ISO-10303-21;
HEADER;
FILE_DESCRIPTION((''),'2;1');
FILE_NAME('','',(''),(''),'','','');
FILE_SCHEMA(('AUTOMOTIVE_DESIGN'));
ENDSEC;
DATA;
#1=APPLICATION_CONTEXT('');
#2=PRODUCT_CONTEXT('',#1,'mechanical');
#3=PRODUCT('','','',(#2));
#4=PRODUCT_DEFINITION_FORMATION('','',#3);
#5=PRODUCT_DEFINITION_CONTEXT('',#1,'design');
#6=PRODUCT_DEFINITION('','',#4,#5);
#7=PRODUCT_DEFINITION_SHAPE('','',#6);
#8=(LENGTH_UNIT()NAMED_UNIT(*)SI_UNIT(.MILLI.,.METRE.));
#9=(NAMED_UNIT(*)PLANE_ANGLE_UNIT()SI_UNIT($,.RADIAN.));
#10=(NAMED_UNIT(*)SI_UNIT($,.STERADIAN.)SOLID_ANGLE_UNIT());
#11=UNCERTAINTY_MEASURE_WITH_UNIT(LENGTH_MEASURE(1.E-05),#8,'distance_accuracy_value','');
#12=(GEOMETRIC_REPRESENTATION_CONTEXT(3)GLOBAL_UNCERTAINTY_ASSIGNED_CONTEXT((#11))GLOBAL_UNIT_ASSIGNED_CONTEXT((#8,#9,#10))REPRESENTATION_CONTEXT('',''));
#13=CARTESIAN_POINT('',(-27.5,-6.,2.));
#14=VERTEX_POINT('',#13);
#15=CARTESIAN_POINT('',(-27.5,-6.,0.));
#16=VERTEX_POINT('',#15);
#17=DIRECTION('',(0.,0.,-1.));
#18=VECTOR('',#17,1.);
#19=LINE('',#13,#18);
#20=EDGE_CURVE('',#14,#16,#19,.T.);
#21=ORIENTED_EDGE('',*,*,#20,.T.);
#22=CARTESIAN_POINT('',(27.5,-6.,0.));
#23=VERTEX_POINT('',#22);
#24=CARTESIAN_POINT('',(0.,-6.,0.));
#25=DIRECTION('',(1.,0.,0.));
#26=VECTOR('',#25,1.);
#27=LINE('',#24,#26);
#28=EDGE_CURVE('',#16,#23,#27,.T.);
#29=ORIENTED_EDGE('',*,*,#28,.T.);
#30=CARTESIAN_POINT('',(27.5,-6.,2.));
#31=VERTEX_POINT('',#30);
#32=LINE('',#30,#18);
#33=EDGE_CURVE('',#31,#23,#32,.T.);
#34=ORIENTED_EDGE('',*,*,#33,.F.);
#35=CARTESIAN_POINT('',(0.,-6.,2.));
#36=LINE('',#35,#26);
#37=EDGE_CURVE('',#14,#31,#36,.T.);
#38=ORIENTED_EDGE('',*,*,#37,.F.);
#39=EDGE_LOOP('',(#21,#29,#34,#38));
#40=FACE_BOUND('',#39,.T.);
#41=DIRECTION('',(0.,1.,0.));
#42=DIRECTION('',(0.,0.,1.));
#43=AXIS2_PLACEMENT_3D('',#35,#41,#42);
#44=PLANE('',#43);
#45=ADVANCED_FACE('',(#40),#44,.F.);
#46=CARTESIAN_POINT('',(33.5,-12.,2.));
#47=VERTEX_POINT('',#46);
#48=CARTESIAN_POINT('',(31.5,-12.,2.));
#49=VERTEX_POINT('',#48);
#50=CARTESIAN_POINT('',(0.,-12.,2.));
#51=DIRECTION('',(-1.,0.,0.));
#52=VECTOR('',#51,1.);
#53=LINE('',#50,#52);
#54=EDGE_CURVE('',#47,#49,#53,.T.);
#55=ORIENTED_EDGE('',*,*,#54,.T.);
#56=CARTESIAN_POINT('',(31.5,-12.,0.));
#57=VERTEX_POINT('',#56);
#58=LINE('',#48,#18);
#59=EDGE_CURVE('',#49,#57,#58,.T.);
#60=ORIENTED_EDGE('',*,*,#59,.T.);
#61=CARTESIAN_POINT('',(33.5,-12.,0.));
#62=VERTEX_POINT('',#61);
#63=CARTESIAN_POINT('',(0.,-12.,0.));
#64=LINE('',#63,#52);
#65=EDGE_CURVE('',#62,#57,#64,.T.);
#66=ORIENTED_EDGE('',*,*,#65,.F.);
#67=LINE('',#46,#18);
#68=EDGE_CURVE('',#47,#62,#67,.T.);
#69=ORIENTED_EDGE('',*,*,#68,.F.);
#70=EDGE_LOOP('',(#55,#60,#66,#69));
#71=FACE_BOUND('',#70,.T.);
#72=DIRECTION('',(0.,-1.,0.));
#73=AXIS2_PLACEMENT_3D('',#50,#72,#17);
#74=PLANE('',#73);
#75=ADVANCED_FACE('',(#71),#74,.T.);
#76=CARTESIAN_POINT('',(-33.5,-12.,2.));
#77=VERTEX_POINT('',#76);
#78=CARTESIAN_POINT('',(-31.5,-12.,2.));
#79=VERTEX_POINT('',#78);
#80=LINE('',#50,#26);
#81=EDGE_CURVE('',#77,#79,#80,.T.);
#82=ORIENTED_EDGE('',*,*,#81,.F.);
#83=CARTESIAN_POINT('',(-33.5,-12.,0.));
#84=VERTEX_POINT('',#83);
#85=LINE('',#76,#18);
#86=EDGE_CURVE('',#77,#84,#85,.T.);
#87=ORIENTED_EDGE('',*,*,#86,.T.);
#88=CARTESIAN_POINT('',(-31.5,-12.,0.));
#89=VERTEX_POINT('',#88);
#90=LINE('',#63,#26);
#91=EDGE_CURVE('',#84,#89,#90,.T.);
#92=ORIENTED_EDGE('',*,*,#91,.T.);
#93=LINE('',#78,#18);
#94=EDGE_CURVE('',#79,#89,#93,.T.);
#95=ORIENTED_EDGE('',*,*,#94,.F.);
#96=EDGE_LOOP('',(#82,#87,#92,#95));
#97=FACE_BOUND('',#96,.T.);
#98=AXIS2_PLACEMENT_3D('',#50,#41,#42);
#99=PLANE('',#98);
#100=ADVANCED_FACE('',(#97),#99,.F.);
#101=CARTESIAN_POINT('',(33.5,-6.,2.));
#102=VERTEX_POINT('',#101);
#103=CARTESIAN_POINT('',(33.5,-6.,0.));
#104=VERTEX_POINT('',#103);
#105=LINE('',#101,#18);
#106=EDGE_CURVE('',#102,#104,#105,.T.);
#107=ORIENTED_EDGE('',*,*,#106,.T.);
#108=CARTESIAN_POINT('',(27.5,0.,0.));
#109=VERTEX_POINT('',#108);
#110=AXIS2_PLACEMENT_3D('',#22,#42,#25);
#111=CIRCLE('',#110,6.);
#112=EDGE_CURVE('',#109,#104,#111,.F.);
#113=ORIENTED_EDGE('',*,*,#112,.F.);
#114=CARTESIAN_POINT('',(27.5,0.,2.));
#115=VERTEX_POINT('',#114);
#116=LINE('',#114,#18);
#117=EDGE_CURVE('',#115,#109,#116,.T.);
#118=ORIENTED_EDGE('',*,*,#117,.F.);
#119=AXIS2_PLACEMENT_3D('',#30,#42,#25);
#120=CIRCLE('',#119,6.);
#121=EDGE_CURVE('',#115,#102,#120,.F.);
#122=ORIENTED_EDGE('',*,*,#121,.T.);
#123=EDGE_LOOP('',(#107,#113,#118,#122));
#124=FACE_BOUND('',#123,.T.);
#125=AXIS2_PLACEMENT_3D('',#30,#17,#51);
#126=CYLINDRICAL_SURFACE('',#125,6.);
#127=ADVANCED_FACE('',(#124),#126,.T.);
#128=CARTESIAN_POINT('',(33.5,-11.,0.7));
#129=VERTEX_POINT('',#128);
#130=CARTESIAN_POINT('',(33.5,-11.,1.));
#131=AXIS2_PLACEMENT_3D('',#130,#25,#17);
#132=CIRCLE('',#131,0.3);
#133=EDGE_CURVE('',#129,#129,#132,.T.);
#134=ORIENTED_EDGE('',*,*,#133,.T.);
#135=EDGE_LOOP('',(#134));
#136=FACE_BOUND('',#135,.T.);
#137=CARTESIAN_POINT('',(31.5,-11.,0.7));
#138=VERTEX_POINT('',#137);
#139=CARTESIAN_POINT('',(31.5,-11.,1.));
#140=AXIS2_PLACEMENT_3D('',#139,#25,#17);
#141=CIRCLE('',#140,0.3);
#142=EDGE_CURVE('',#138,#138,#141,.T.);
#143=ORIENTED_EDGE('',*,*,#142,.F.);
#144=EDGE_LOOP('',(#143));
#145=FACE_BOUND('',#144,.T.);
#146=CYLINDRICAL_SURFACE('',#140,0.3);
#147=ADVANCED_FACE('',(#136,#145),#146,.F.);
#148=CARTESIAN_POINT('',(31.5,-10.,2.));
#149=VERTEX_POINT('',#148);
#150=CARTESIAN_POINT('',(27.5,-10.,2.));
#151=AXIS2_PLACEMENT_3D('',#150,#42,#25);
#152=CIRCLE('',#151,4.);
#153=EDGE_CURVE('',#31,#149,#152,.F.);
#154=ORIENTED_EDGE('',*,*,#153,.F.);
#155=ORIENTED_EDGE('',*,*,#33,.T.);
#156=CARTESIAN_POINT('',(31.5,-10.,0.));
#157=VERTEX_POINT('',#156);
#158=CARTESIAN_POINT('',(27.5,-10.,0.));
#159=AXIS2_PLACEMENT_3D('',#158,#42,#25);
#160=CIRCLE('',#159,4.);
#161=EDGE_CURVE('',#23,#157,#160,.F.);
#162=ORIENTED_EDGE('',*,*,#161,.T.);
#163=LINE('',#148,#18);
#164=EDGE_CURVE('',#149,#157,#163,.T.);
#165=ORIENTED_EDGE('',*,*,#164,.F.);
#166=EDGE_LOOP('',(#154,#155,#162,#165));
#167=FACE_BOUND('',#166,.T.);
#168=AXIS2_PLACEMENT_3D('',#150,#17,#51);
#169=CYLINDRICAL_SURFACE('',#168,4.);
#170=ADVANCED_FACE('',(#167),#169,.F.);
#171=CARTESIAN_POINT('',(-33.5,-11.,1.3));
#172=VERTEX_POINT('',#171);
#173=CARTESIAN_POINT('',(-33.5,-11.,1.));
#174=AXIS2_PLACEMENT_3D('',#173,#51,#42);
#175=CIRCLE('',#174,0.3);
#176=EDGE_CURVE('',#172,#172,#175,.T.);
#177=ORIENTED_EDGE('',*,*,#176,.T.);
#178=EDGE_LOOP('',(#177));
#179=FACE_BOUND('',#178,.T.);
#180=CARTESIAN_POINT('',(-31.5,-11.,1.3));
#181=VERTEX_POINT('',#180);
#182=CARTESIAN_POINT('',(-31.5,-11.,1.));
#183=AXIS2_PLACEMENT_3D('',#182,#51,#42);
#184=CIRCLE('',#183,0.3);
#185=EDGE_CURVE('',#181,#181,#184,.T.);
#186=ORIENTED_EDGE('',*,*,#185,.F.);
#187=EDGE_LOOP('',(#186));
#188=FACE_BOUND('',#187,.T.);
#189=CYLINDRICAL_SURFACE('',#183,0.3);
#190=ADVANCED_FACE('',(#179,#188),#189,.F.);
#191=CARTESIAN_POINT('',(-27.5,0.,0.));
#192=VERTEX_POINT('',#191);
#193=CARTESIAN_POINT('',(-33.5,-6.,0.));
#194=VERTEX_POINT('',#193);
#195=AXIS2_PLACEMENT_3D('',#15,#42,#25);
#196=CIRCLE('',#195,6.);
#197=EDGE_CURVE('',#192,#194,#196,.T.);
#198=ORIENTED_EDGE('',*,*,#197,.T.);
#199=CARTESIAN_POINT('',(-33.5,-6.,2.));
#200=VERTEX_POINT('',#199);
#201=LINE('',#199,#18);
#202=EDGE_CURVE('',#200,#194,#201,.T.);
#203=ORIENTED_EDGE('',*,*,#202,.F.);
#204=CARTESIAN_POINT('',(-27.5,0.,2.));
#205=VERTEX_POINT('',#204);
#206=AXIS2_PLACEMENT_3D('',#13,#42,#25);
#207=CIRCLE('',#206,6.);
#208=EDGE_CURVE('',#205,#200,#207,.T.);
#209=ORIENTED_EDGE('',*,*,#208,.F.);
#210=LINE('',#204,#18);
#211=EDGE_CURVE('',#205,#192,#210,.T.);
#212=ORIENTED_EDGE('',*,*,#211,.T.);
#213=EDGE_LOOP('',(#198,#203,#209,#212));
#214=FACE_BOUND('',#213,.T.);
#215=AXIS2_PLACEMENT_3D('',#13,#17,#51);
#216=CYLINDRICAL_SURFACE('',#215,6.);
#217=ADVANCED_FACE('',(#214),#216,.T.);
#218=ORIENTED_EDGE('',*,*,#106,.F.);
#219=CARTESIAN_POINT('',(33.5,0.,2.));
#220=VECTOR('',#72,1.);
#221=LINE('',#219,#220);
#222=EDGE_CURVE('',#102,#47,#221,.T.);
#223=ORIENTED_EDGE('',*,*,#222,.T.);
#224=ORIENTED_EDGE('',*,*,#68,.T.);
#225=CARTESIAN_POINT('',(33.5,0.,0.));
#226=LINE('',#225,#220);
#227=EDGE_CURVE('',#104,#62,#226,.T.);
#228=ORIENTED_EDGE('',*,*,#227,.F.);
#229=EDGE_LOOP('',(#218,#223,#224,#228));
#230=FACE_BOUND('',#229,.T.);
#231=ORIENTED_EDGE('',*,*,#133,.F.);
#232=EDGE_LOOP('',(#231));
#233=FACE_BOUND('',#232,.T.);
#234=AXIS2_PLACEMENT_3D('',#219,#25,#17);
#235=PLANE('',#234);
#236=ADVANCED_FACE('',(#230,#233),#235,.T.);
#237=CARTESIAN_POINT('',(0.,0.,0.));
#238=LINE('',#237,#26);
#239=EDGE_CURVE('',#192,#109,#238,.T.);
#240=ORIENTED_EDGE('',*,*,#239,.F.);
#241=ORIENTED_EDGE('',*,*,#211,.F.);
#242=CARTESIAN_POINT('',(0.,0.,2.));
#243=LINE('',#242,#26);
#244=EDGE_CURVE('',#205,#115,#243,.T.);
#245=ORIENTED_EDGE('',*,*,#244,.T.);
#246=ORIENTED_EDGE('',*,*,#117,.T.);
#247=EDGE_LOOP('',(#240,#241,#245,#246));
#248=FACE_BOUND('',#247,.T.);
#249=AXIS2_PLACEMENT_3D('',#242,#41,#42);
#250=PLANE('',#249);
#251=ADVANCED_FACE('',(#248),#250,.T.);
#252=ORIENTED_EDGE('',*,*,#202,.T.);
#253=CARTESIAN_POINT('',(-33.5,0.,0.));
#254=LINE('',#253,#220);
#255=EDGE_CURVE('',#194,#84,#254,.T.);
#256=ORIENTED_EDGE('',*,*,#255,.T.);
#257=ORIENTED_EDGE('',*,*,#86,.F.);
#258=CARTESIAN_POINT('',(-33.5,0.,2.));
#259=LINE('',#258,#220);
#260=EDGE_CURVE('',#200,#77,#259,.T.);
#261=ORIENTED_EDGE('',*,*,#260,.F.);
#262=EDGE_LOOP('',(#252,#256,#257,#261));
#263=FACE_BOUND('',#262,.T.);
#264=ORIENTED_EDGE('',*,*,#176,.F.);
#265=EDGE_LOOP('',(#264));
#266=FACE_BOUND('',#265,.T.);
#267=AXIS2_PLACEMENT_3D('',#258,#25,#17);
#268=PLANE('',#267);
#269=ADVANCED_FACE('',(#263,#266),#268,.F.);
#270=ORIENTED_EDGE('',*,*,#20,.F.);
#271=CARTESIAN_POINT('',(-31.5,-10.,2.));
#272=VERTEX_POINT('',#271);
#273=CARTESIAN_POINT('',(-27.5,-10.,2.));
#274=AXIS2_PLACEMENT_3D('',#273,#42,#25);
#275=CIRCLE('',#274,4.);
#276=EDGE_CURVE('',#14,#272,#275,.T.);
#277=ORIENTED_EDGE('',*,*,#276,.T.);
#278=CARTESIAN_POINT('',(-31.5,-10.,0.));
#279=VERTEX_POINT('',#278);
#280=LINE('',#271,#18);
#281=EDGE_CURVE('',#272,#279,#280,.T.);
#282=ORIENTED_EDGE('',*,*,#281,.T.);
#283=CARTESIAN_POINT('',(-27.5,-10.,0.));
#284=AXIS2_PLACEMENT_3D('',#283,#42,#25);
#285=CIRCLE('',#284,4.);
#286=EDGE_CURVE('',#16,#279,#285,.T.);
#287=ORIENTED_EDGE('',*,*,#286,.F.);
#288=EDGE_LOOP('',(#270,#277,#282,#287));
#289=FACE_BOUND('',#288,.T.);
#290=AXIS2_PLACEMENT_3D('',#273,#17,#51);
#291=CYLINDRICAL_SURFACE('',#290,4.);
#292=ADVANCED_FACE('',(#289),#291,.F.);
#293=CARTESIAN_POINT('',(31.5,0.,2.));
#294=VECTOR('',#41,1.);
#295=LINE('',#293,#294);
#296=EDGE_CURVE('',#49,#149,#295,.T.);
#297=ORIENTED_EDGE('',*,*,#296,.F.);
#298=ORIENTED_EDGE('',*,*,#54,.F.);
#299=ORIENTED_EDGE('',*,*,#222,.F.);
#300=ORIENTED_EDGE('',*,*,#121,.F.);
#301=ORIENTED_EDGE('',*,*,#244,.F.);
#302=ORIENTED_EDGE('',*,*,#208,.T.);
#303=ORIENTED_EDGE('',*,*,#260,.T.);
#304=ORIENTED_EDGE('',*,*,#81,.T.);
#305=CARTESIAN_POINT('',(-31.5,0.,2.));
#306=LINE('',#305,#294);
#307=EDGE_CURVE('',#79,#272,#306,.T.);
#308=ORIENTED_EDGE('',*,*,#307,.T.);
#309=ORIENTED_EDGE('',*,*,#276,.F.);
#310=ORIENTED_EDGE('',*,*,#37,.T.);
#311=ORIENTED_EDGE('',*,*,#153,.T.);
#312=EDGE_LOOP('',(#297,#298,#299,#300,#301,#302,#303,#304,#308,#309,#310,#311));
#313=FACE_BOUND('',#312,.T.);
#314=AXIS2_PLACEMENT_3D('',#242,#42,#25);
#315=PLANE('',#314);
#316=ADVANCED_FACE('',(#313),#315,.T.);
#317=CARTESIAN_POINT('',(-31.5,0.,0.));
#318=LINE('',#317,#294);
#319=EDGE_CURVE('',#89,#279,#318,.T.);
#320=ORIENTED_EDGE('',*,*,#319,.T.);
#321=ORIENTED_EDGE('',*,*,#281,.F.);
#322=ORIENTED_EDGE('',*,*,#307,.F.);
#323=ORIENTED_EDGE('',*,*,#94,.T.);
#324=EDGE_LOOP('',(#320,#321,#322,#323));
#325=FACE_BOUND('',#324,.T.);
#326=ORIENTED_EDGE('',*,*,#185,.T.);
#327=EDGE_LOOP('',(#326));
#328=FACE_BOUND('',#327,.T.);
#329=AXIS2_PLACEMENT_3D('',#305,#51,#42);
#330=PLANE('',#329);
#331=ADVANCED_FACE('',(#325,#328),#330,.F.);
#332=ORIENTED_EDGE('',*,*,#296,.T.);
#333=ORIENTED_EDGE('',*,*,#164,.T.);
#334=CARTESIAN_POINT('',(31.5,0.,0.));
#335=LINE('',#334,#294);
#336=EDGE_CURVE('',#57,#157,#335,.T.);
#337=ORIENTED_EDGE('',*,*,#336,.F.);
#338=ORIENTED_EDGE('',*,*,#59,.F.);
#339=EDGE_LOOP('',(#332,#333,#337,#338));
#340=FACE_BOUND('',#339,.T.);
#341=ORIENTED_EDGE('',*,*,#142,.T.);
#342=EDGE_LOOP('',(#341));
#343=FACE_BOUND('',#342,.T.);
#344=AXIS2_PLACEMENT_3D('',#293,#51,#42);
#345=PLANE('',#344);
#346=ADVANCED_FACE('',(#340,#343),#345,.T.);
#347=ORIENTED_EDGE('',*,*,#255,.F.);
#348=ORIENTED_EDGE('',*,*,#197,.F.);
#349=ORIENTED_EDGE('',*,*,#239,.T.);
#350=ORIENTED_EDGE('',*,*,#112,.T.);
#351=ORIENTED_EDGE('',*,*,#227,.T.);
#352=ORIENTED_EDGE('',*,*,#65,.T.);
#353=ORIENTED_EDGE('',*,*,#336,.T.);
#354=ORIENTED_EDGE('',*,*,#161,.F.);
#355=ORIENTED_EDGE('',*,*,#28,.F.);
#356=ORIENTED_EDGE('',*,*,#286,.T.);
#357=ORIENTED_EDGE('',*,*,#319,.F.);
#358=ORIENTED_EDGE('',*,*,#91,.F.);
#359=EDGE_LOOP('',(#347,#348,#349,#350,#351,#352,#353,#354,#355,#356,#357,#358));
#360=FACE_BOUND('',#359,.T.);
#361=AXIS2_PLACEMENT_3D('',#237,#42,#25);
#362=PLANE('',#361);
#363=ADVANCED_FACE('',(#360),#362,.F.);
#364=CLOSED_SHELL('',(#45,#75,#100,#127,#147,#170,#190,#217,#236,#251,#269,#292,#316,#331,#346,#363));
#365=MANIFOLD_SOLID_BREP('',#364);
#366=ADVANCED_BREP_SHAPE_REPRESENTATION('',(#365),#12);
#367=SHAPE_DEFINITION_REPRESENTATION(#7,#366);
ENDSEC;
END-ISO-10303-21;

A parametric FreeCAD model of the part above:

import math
import FreeCAD as App
import Part
import Sketcher
from FreeCAD import Vector
Q = App.Units.Quantity

doc = App.newDocument("Part")
params = doc.addObject("Spreadsheet::Sheet", "Params")
for row, (alias, value) in enumerate([
    ("sketch1_radius", "4 mm"),
    ("sketch1_radius2", "6 mm"),
    ("sketch1_width", "55 mm"),
    ("pad1_length", "2 mm"),
    ("sketch2_diameter", "0.6 mm"),
    ("pocket1_length", "2 mm"),
    ("sketch3_diameter", "0.6 mm"),
    ("pocket2_length", "2 mm"),
], start=1):
    params.set(f"A{row}", alias)
    params.set(f"B{row}", "=" + value)
    params.setAlias(f"B{row}", alias)

body = doc.addObject("PartDesign::Body", "Body")

sketch1 = doc.addObject("Sketcher::SketchObject", "Sketch")
body.addObject(sketch1)
sketch1.AttachmentSupport = (doc.XY_Plane, [""])
sketch1.MapMode = "FlatFace"
sketch1.addGeometry(Part.LineSegment(Vector(-27.5, -6, 0), Vector(27.5, -6, 0)), False)
sketch1.addGeometry(Part.ArcOfCircle(Part.Circle(Vector(27.5, -10, 0), Vector(0, 0, 1), 4), math.radians(0), math.radians(90)), False)
sketch1.addGeometry(Part.LineSegment(Vector(31.5, -10, 0), Vector(31.5, -12, 0)), False)
sketch1.addGeometry(Part.LineSegment(Vector(31.5, -12, 0), Vector(33.5, -12, 0)), False)
sketch1.addGeometry(Part.LineSegment(Vector(33.5, -12, 0), Vector(33.5, -6, 0)), False)
sketch1.addGeometry(Part.ArcOfCircle(Part.Circle(Vector(27.5, -6, 0), Vector(0, 0, 1), 6), math.radians(0), math.radians(90)), False)
sketch1.addGeometry(Part.LineSegment(Vector(27.5, 0, 0), Vector(-27.5, 0, 0)), False)
sketch1.addGeometry(Part.ArcOfCircle(Part.Circle(Vector(-27.5, -6, 0), Vector(0, 0, 1), 6), math.radians(90), math.radians(180)), False)
sketch1.addGeometry(Part.LineSegment(Vector(-33.5, -6, 0), Vector(-33.5, -12, 0)), False)
sketch1.addGeometry(Part.LineSegment(Vector(-33.5, -12, 0), Vector(-31.5, -12, 0)), False)
sketch1.addGeometry(Part.LineSegment(Vector(-31.5, -12, 0), Vector(-31.5, -10, 0)), False)
sketch1.addGeometry(Part.ArcOfCircle(Part.Circle(Vector(-27.5, -10, 0), Vector(0, 0, 1), 4), math.radians(90), math.radians(180)), False)
sketch1.addConstraint(Sketcher.Constraint("Tangent", 0, 2, 1, 2))
sketch1.addConstraint(Sketcher.Constraint("Tangent", 1, 1, 2, 1))
sketch1.addConstraint(Sketcher.Constraint("Coincident", 2, 2, 3, 1))
sketch1.addConstraint(Sketcher.Constraint("Coincident", 3, 2, 4, 1))
sketch1.addConstraint(Sketcher.Constraint("Tangent", 4, 2, 5, 1))
sketch1.addConstraint(Sketcher.Constraint("Tangent", 5, 2, 6, 1))
sketch1.addConstraint(Sketcher.Constraint("Tangent", 6, 2, 7, 1))
sketch1.addConstraint(Sketcher.Constraint("Tangent", 7, 2, 8, 1))
sketch1.addConstraint(Sketcher.Constraint("Coincident", 8, 2, 9, 1))
sketch1.addConstraint(Sketcher.Constraint("Coincident", 9, 2, 10, 1))
sketch1.addConstraint(Sketcher.Constraint("Tangent", 10, 2, 11, 2))
sketch1.addConstraint(Sketcher.Constraint("Tangent", 11, 1, 0, 1))
sketch1.addConstraint(Sketcher.Constraint("Horizontal", 0))
sketch1.addConstraint(Sketcher.Constraint("Vertical", 2))
sketch1.addConstraint(Sketcher.Constraint("Horizontal", 3))
sketch1.addConstraint(Sketcher.Constraint("Vertical", 4))
sketch1.addConstraint(Sketcher.Constraint("Horizontal", 6))
sketch1.addConstraint(Sketcher.Constraint("Vertical", 8))
sketch1.addConstraint(Sketcher.Constraint("Horizontal", 9))
sketch1.addConstraint(Sketcher.Constraint("Vertical", 10))
sketch1.addConstraint(Sketcher.Constraint("Coincident", 0, 2, 5, 3))
sketch1.addConstraint(Sketcher.Constraint("Coincident", 11, 1, 7, 3))
sketch1.addConstraint(Sketcher.Constraint("Equal", 1, 11))
sketch1.addConstraint(Sketcher.Constraint("Symmetric", 5, 2, 6, 2, -1, 1))
sketch1.addConstraint(Sketcher.Constraint("Horizontal", 3, 2, 8, 2))
sketch1.addConstraint(Sketcher.Constraint("Equal", 9, 2))
sketch1.addConstraint(Sketcher.Constraint("Radius", 1, Q("4 mm")))
sketch1.addConstraint(Sketcher.Constraint("Radius", 5, Q("6 mm")))
sketch1.addConstraint(Sketcher.Constraint("DistanceX", 0, 1, 0, 2, Q("55 mm")))
sketch1.setExpression("Constraints[26]", "Params.sketch1_radius")
sketch1.setExpression("Constraints[27]", "Params.sketch1_radius2")
sketch1.setExpression("Constraints[28]", "Params.sketch1_width")
pad1 = doc.addObject("PartDesign::Pad", "Pad")
body.addObject(pad1)
pad1.Profile = sketch1
pad1.setExpression("Length", "Params.pad1_length")

sketch2 = doc.addObject("Sketcher::SketchObject", "Sketch001")
body.addObject(sketch2)
sketch2.AttachmentSupport = (doc.YZ_Plane, [""])
sketch2.MapMode = "FlatFace"
sketch2.AttachmentOffset = App.Placement(Vector(0, 0, 33.5), App.Rotation())
sketch2.addGeometry(Part.Circle(Vector(-11, 1, 0), Vector(0, 0, 1), 0.3), False)
sketch2.addConstraint(Sketcher.Constraint("Diameter", 0, Q("0.6 mm")))
sketch2.addConstraint(Sketcher.Constraint("DistanceX", 0, 3, -1, 1, Q("11 mm")))
sketch2.addConstraint(Sketcher.Constraint("DistanceY", -1, 1, 0, 3, Q("1 mm")))
sketch2.setExpression("Constraints[0]", "Params.sketch2_diameter")
pocket1 = doc.addObject("PartDesign::Pocket", "Pocket")
body.addObject(pocket1)
pocket1.Profile = sketch2
pocket1.setExpression("Length", "Params.pocket1_length")

sketch3 = doc.addObject("Sketcher::SketchObject", "Sketch002")
body.addObject(sketch3)
sketch3.AttachmentSupport = (doc.YZ_Plane, [""])
sketch3.MapMode = "FlatFace"
sketch3.AttachmentOffset = App.Placement(Vector(0, 0, -31.5), App.Rotation())
sketch3.addGeometry(Part.Circle(Vector(-11, 1, 0), Vector(0, 0, 1), 0.3), False)
sketch3.addConstraint(Sketcher.Constraint("Diameter", 0, Q("0.6 mm")))
sketch3.addConstraint(Sketcher.Constraint("DistanceX", 0, 3, -1, 1, Q("11 mm")))
sketch3.addConstraint(Sketcher.Constraint("DistanceY", -1, 1, 0, 3, Q("1 mm")))
sketch3.setExpression("Constraints[0]", "Params.sketch3_diameter")
pocket2 = doc.addObject("PartDesign::Pocket", "Pocket001")
body.addObject(pocket2)
pocket2.Profile = sketch3
pocket2.setExpression("Length", "Params.pocket2_length")

doc.recompute()
